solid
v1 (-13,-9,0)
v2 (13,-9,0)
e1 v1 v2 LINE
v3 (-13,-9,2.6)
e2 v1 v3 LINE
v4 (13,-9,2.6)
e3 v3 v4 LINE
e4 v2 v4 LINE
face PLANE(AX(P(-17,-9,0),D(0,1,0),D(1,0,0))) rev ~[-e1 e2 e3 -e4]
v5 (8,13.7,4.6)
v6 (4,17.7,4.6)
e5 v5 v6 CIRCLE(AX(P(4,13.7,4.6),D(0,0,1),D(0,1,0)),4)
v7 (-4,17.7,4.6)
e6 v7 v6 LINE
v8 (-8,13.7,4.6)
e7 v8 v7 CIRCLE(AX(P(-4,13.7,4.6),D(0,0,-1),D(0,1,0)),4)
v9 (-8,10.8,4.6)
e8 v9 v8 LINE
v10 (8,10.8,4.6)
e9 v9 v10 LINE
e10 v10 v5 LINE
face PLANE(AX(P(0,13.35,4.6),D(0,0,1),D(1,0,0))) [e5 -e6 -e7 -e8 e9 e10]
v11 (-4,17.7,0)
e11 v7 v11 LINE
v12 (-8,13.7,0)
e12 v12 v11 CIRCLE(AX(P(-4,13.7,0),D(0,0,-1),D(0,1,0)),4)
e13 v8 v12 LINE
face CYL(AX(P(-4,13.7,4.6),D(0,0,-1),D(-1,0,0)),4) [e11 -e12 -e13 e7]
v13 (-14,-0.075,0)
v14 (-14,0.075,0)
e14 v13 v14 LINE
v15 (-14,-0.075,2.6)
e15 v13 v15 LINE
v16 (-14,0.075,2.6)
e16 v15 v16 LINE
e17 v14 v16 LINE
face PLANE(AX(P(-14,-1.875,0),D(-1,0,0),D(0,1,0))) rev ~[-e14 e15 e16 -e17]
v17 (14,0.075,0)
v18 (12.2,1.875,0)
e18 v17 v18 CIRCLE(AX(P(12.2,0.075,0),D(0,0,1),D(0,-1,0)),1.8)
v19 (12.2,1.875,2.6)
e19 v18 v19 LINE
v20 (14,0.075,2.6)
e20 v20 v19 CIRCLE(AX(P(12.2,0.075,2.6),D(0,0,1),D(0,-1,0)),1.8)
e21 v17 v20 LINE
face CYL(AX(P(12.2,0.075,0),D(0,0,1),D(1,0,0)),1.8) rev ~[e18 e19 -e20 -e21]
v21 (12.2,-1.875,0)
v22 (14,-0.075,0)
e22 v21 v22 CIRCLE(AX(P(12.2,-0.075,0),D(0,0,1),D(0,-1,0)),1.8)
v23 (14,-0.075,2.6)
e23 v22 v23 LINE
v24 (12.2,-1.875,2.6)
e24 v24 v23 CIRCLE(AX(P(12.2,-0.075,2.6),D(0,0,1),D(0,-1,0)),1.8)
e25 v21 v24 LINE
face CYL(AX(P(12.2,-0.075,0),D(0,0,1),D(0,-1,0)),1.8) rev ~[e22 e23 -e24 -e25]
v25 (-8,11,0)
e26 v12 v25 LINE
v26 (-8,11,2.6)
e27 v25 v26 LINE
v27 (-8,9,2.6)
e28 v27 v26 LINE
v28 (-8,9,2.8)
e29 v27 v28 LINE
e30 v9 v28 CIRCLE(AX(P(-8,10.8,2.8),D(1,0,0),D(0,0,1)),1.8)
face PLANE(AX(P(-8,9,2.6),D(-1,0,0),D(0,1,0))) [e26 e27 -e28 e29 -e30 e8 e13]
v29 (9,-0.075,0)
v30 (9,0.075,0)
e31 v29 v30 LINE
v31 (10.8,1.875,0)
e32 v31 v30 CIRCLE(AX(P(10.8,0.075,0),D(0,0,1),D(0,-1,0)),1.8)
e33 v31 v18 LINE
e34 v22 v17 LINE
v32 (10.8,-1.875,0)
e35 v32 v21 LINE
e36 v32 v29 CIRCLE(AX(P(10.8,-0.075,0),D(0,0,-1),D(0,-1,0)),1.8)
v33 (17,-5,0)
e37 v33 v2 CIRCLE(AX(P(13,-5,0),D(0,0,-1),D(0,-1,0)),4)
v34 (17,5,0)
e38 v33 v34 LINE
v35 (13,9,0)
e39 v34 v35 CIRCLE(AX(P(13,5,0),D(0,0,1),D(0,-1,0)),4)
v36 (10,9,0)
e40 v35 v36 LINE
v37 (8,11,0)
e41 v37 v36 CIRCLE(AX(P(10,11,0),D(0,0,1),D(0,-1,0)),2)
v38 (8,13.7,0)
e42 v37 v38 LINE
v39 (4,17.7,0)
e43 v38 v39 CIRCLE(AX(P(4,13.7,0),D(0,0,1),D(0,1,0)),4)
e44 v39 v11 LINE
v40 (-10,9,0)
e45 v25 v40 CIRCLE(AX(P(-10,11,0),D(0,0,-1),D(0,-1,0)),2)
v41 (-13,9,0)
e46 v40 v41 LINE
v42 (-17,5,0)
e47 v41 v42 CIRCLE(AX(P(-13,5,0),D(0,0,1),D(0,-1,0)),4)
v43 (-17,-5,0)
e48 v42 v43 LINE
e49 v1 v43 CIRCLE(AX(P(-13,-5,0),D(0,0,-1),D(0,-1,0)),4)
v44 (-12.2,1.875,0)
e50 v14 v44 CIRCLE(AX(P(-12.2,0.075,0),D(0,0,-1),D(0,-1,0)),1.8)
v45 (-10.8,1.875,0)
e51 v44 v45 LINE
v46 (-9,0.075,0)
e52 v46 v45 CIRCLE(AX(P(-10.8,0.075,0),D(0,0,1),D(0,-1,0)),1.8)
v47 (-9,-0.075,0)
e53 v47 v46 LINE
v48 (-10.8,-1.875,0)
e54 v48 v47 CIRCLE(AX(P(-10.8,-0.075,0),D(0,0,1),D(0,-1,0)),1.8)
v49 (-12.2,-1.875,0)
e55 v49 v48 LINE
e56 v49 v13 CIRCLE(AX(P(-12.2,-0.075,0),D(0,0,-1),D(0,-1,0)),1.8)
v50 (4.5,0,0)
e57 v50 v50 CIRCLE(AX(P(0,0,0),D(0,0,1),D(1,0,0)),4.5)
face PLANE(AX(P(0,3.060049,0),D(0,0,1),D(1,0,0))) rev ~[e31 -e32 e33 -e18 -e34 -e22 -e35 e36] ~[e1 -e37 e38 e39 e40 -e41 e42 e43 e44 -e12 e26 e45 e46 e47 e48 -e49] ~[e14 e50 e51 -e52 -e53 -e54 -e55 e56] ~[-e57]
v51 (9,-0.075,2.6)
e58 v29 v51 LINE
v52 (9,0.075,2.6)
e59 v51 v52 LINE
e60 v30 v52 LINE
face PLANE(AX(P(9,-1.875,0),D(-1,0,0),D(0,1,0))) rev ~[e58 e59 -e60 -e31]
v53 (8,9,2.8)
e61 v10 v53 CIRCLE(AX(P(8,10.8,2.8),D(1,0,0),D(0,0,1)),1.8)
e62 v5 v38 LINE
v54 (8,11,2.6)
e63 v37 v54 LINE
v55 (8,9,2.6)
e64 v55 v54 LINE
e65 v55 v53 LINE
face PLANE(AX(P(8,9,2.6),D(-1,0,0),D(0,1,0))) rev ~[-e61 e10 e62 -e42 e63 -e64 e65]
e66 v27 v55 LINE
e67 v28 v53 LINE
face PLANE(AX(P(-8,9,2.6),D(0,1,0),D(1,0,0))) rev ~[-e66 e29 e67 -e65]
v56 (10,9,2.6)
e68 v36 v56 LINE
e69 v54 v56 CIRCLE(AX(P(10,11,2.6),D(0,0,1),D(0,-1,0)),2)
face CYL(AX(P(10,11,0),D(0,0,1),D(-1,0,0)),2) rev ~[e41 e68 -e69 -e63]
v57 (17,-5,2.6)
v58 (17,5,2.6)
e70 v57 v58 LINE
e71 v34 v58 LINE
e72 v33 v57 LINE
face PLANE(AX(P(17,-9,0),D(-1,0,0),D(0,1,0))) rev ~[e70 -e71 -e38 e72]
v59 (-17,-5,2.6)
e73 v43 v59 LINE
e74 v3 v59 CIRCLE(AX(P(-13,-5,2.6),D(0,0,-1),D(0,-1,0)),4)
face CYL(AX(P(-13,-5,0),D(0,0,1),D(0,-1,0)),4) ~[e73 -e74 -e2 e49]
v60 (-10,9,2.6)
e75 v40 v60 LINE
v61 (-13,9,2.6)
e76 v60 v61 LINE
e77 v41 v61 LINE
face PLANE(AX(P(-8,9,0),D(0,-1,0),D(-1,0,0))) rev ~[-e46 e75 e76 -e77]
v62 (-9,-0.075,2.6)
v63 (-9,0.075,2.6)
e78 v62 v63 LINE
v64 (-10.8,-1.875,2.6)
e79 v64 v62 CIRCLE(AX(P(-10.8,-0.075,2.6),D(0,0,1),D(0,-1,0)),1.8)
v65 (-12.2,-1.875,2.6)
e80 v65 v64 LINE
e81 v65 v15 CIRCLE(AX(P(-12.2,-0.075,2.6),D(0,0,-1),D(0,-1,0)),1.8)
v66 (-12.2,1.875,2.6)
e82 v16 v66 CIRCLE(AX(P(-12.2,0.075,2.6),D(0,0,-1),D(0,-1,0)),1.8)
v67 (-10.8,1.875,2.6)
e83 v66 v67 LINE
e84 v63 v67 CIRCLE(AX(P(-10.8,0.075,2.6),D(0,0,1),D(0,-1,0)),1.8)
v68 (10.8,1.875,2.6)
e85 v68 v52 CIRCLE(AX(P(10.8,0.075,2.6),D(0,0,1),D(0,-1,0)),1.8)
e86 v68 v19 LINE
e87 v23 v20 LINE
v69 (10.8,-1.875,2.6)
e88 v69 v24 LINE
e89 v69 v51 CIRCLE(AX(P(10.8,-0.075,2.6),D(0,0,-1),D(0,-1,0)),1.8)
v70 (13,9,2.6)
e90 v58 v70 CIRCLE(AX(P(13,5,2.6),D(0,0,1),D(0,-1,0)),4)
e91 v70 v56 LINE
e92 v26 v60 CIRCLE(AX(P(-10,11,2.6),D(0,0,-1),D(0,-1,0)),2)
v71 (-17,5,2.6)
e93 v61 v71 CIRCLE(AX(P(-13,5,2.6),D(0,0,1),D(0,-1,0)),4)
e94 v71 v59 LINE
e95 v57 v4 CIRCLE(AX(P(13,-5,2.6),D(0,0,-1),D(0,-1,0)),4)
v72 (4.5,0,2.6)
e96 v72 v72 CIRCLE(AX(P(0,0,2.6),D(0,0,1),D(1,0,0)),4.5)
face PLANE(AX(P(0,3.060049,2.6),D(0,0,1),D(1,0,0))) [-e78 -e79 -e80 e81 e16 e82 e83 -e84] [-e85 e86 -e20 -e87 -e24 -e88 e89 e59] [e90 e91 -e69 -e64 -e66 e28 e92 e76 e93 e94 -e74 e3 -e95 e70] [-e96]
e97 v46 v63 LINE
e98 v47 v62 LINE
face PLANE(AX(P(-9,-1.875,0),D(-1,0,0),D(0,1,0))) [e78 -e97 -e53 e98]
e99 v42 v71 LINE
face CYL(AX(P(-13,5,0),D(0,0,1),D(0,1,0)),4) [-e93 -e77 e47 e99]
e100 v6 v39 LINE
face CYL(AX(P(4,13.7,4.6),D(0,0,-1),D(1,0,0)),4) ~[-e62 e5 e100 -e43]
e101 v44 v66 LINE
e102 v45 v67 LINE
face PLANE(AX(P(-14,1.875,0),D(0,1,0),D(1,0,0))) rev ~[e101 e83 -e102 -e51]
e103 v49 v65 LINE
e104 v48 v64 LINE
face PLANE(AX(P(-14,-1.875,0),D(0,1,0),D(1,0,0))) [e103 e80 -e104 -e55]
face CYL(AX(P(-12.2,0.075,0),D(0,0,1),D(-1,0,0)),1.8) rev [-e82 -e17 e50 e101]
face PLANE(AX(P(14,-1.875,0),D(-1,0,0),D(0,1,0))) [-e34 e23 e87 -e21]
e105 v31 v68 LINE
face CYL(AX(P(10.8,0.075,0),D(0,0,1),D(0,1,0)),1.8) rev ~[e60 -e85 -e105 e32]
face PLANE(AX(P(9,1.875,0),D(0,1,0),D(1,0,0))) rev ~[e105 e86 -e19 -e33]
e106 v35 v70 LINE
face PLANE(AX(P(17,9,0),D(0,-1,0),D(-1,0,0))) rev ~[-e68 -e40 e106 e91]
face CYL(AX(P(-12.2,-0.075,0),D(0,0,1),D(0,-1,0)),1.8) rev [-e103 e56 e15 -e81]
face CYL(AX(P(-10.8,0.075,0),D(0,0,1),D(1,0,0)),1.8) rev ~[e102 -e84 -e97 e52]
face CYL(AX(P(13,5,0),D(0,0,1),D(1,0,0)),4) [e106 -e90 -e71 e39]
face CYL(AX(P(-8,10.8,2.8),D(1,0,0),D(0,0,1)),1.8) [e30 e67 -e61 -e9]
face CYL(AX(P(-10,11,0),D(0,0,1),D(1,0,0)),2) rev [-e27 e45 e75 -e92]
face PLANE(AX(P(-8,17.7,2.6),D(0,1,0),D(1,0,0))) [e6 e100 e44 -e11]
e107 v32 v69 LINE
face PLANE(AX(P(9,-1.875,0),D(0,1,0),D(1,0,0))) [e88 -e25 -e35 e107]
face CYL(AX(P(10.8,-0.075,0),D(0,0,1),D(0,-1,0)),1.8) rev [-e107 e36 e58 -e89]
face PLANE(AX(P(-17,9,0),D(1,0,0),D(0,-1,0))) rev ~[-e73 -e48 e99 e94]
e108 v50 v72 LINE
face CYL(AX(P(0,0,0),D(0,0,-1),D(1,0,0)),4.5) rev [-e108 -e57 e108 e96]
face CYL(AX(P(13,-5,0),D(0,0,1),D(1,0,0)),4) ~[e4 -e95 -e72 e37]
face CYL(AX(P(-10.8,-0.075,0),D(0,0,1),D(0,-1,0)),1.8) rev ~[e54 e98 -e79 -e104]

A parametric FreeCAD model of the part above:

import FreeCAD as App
import Part
import Sketcher
from FreeCAD import Vector
Q = App.Units.Quantity


def edges_at(feature, points):
    """Names of the edges that pass closest to the given points."""
    edges = feature.Shape.Edges
    near = lambda p: min(range(len(edges)), key=lambda i: edges[i].distToShape(Part.Vertex(*p))[0])
    return sorted({f"Edge{near(p) + 1}" for p in points})

doc = App.newDocument("Part")
body = doc.addObject("PartDesign::Body", "Body")

sketch1 = body.newObject("Sketcher::SketchObject", "Sketch")
sketch1.AttachmentSupport = (doc.getObject("XY_Plane"), [""])
sketch1.MapMode = "FlatFace"
sketch1.addGeometry([
    Part.LineSegment(Vector(17, -9, 0), Vector(17, 9, 0)),
    Part.LineSegment(Vector(17, 9, 0), Vector(8, 9, 0)),
    Part.LineSegment(Vector(8, 9, 0), Vector(8, 17.7, 0)),
    Part.LineSegment(Vector(8, 17.7, 0), Vector(-8, 17.7, 0)),
    Part.LineSegment(Vector(-8, 17.7, 0), Vector(-8, 9, 0)),
    Part.LineSegment(Vector(-8, 9, 0), Vector(-17, 9, 0)),
    Part.LineSegment(Vector(-17, 9, 0), Vector(-17, -9, 0)),
    Part.LineSegment(Vector(-17, -9, 0), Vector(17, -9, 0)),
    Part.LineSegment(Vector(-9, -1.9, 0), Vector(-14, -1.9, 0)),
    Part.LineSegment(Vector(-14, -1.9, 0), Vector(-14, 1.9, 0)),
    Part.LineSegment(Vector(-14, 1.9, 0), Vector(-9, 1.9, 0)),
    Part.LineSegment(Vector(-9, 1.9, 0), Vector(-9, -1.9, 0)),
    Part.Circle(Vector(0, 0, 0), Vector(0, 0, 1), 4.5),
    Part.LineSegment(Vector(14, -1.9, 0), Vector(9, -1.9, 0)),
    Part.LineSegment(Vector(9, -1.9, 0), Vector(9, 1.9, 0)),
    Part.LineSegment(Vector(9, 1.9, 0), Vector(14, 1.9, 0)),
    Part.LineSegment(Vector(14, 1.9, 0), Vector(14, -1.9, 0)),
], False)
sketch1.addConstraint([
    Sketcher.Constraint("Coincident", 0, 2, 1, 1),
    Sketcher.Constraint("Coincident", 1, 2, 2, 1),
    Sketcher.Constraint("Coincident", 2, 2, 3, 1),
    Sketcher.Constraint("Coincident", 3, 2, 4, 1),
    Sketcher.Constraint("Coincident", 4, 2, 5, 1),
    Sketcher.Constraint("Coincident", 5, 2, 6, 1),
    Sketcher.Constraint("Coincident", 6, 2, 7, 1),
    Sketcher.Constraint("Coincident", 7, 2, 0, 1),
    Sketcher.Constraint("Coincident", 8, 2, 9, 1),
    Sketcher.Constraint("Coincident", 9, 2, 10, 1),
    Sketcher.Constraint("Coincident", 10, 2, 11, 1),
    Sketcher.Constraint("Coincident", 11, 2, 8, 1),
    Sketcher.Constraint("Coincident", 13, 2, 14, 1),
    Sketcher.Constraint("Coincident", 14, 2, 15, 1),
    Sketcher.Constraint("Coincident", 15, 2, 16, 1),
    Sketcher.Constraint("Coincident", 16, 2, 13, 1),
    Sketcher.Constraint("Vertical", 0),
    Sketcher.Constraint("Horizontal", 1),
    Sketcher.Constraint("Vertical", 2),
    Sketcher.Constraint("Horizontal", 3),
    Sketcher.Constraint("Vertical", 4),
    Sketcher.Constraint("Horizontal", 5),
    Sketcher.Constraint("Vertical", 6),
    Sketcher.Constraint("Horizontal", 7),
    Sketcher.Constraint("Horizontal", 8),
    Sketcher.Constraint("Vertical", 9),
    Sketcher.Constraint("Horizontal", 10),
    Sketcher.Constraint("Vertical", 11),
    Sketcher.Constraint("Horizontal", 13),
    Sketcher.Constraint("Vertical", 14),
    Sketcher.Constraint("Horizontal", 15),
    Sketcher.Constraint("Vertical", 16),
    Sketcher.Constraint("Coincident", 12, 3, -1, 1),
    Sketcher.Constraint("Symmetric", 0, 2, 6, 2, -1, 1),
    Sketcher.Constraint("Symmetric", 10, 2, 13, 2, -1, 1),
    Sketcher.Constraint("Symmetric", 8, 2, 15, 2, -1, 1),
    Sketcher.Constraint("Symmetric", 1, 2, 4, 2, -2),
    Sketcher.Constraint("Horizontal", 11, 2, 13, 2),
    Sketcher.Constraint("Diameter", 12, Q("9 mm")),
    Sketcher.Constraint("DistanceX", 1, 2, 1, 1, Q("9 mm")),
    Sketcher.Constraint("DistanceX", 3, 2, 3, 1, Q("16 mm")),
    Sketcher.Constraint("DistanceX", 8, 2, 8, 1, Q("5 mm")),
    Sketcher.Constraint("DistanceY", 0, 1, 0, 2, Q("18 mm")),
    Sketcher.Constraint("DistanceY", 2, 1, 2, 2, Q("8.7 mm")),
    Sketcher.Constraint("DistanceX", 8, 2, -1, 1, Q("14 mm")),
    Sketcher.Constraint("DistanceY", 9, 1, 9, 2, Q("3.75 mm")),
])
pad1 = body.newObject("PartDesign::Pad", "Pad")
pad1.Profile = sketch1
pad1.Length = 2.6

sketch2 = body.newObject("Sketcher::SketchObject", "Sketch001")
sketch2.AttachmentSupport = (doc.getObject("XY_Plane"), [""])
sketch2.MapMode = "FlatFace"
sketch2.AttachmentOffset = App.Placement(Vector(0, 0, 2.6), App.Rotation())
sketch2.addGeometry([
    Part.LineSegment(Vector(-8, 18, 0), Vector(-8, 9, 0)),
    Part.LineSegment(Vector(-8, 9, 0), Vector(8, 9, 0)),
    Part.LineSegment(Vector(8, 9, 0), Vector(8, 18, 0)),
    Part.LineSegment(Vector(8, 18, 0), Vector(-8, 18, 0)),
], False)
sketch2.addConstraint([
    Sketcher.Constraint("Coincident", 0, 2, 1, 1),
    Sketcher.Constraint("Coincident", 1, 2, 2, 1),
    Sketcher.Constraint("Coincident", 2, 2, 3, 1),
    Sketcher.Constraint("Coincident", 3, 2, 0, 1),
    Sketcher.Constraint("Vertical", 0),
    Sketcher.Constraint("Horizontal", 1),
    Sketcher.Constraint("Vertical", 2),
    Sketcher.Constraint("Horizontal", 3),
    Sketcher.Constraint("DistanceX", 1, 1, 1, 2, Q("16 mm")),
    Sketcher.Constraint("DistanceY", 0, 2, 0, 1, Q("8.7 mm")),
    Sketcher.Constraint("DistanceX", 0, 2, -1, 1, Q("8 mm")),
    Sketcher.Constraint("DistanceY", -1, 1, 0, 2, Q("9 mm")),
])
pad2 = body.newObject("PartDesign::Pad", "Pad001")
pad2.Profile = sketch2
pad2.Length = 2
doc.recompute()

fillet = body.newObject("PartDesign::Fillet", "Fillet")
fillet.Base = (pad2, edges_at(pad2, [
    (17, 9, 1.3),
    (17, -9, 1.3),
    (-17, 9, 1.3),
    (-17, -9, 1.3),
    (8, 17.7, 2.3),
    (-8, 17.7, 2.3),
]))
fillet.Radius = 4
doc.recompute()

fillet2 = body.newObject("PartDesign::Fillet", "Fillet001")
fillet2.Base = (fillet, edges_at(fillet, [
    (0, 9, 4.6),
    (-14, 1.875, 1.3),
    (-14, -1.875, 1.3),
    (-9, 1.875, 1.3),
    (-9, -1.875, 1.3),
    (14, 1.875, 1.3),
    (9, 1.875, 1.3),
    (9, -1.875, 1.3),
    (14, -1.875, 1.3),
]))
fillet2.Radius = 1.8
doc.recompute()

fillet3 = body.newObject("PartDesign::Fillet", "Fillet002")
fillet3.Base = (fillet2, edges_at(fillet2, [(8, 9, 1.3), (-8, 9, 1.3)]))
fillet3.Radius = 2

doc.recompute()
